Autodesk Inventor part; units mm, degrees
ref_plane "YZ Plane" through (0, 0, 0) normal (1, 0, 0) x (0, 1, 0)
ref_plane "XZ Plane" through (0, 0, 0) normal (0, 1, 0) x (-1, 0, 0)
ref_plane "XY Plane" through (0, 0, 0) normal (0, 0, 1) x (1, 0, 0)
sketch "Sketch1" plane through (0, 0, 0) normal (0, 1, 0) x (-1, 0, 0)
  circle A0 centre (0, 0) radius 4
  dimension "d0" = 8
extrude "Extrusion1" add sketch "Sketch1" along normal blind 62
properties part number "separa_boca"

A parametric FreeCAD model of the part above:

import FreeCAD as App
import Part
import Sketcher

V = App.Vector

doc = App.newDocument("Part")
body = doc.addObject("PartDesign::Body", "Body")

sketch1 = body.newObject("Sketcher::SketchObject", "Sketch")
sketch1.AttachmentSupport = (doc.getObject("XZ_Plane"), [""])
sketch1.MapMode = "FlatFace"
sketch1.addGeometry(Part.Circle(V(0, 0, 0), V(0, 0, 1), 4), False)
sketch1.addConstraint(Sketcher.Constraint("Coincident", 0, 3, -1, 1))
sketch1.addConstraint(Sketcher.Constraint("Diameter", 0, 8.0))
pad1 = body.newObject("PartDesign::Pad", "Pad")
pad1.Profile = sketch1
pad1.Length = 62
pad1.Reversed = True

doc.recompute()
